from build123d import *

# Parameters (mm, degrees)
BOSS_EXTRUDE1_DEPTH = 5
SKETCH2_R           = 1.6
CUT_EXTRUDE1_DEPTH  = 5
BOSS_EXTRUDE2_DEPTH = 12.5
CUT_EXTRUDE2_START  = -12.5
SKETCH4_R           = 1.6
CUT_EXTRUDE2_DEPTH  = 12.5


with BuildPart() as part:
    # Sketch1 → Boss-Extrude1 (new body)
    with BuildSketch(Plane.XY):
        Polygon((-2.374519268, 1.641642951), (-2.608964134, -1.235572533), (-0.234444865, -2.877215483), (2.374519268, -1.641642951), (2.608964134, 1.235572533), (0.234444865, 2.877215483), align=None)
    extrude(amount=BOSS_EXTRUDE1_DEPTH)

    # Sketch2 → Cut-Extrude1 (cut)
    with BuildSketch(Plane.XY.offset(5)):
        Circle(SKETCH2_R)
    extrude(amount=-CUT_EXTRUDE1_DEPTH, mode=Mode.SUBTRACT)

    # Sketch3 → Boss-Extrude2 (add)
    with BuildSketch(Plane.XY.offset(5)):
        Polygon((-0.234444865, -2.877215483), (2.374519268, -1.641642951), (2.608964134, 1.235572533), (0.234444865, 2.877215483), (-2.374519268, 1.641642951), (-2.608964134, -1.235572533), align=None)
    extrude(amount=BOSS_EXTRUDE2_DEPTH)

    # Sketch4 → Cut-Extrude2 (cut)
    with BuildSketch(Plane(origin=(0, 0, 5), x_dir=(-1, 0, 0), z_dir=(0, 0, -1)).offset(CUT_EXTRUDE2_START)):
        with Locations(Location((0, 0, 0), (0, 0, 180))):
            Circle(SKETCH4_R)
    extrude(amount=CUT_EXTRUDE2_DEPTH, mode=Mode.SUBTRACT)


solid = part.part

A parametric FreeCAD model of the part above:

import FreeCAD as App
import Part
import Sketcher
Q = App.Units.Quantity

doc = App.newDocument("Part")
body = doc.addObject("PartDesign::Body", "Body")

# Sketch on XY plane
sketch1 = doc.addObject("Sketcher::SketchObject", "Sketch")
body.addObject(sketch1)
sketch1.AttachmentSupport = (doc.XY_Plane, [""])
sketch1.MapMode = "FlatFace"
sketch1.addGeometry(Part.LineSegment(App.Vector(-2.4, 1.6, 0), App.Vector(-2.6, -1.2, 0)), False)
sketch1.addGeometry(Part.LineSegment(App.Vector(-2.6, -1.2, 0), App.Vector(-0.2, -2.9, 0)), False)
sketch1.addGeometry(Part.LineSegment(App.Vector(-0.2, -2.9, 0), App.Vector(2.4, -1.6, 0)), False)
sketch1.addGeometry(Part.LineSegment(App.Vector(2.4, -1.6, 0), App.Vector(2.6, 1.2, 0)), False)
sketch1.addGeometry(Part.LineSegment(App.Vector(2.6, 1.2, 0), App.Vector(0.2, 2.9, 0)), False)
sketch1.addGeometry(Part.LineSegment(App.Vector(0.2, 2.9, 0), App.Vector(-2.4, 1.6, 0)), False)
sketch1.addConstraint(Sketcher.Constraint("Coincident", 0, 2, 1, 1))
sketch1.addConstraint(Sketcher.Constraint("Coincident", 1, 2, 2, 1))
sketch1.addConstraint(Sketcher.Constraint("Coincident", 2, 2, 3, 1))
sketch1.addConstraint(Sketcher.Constraint("Coincident", 3, 2, 4, 1))
sketch1.addConstraint(Sketcher.Constraint("Coincident", 4, 2, 5, 1))
sketch1.addConstraint(Sketcher.Constraint("Coincident", 5, 2, 0, 1))
sketch1.addConstraint(Sketcher.Constraint("Symmetric", 0, 2, 3, 2, -1, 1))
sketch1.addConstraint(Sketcher.Constraint("Symmetric", 1, 2, 4, 2, -1, 1))
sketch1.addConstraint(Sketcher.Constraint("Symmetric", 2, 2, 5, 2, -1, 1))
sketch1.addConstraint(Sketcher.Constraint("Equal", 0, 1))
sketch1.addConstraint(Sketcher.Constraint("Equal", 1, 2))
sketch1.addConstraint(Sketcher.Constraint("Distance", 0, Q("2.886751 mm")))
sketch1.addConstraint(Sketcher.Constraint("DistanceX", -1, 1, 2, 2, Q("2.374519 mm")))
sketch1.addConstraint(Sketcher.Constraint("DistanceX", 0, 2, 1, 2, Q("2.374519 mm")))
sketch1.addConstraint(Sketcher.Constraint("DistanceY", 2, 2, 0, 2, Q("0.40607 mm")))
pad1 = doc.addObject("PartDesign::Pad", "Pad")
body.addObject(pad1)
pad1.Profile = sketch1
pad1.Length = 5

# Sketch on XY plane
sketch2 = doc.addObject("Sketcher::SketchObject", "Sketch001")
body.addObject(sketch2)
sketch2.AttachmentSupport = (doc.XY_Plane, [""])
sketch2.MapMode = "FlatFace"
sketch2.AttachmentOffset = App.Placement(App.Vector(0, 0, 5), App.Rotation())
sketch2.addGeometry(Part.Circle(App.Vector(0, 0, 0), App.Vector(0, 0, 1), 1.6), False)
sketch2.addConstraint(Sketcher.Constraint("Coincident", 0, 3, -1, 1))
sketch2.addConstraint(Sketcher.Constraint("Diameter", 0, Q("3.2 mm")))
pocket1 = doc.addObject("PartDesign::Pocket", "Pocket")
body.addObject(pocket1)
pocket1.Profile = sketch2
pocket1.Length = 5

# Sketch on XY plane
sketch3 = doc.addObject("Sketcher::SketchObject", "Sketch002")
body.addObject(sketch3)
sketch3.AttachmentSupport = (doc.XY_Plane, [""])
sketch3.MapMode = "FlatFace"
sketch3.AttachmentOffset = App.Placement(App.Vector(0, 0, 5), App.Rotation())
sketch3.addGeometry(Part.LineSegment(App.Vector(-0.2, -2.9, 0), App.Vector(2.4, -1.6, 0)), False)
sketch3.addGeometry(Part.LineSegment(App.Vector(2.4, -1.6, 0), App.Vector(2.6, 1.2, 0)), False)
sketch3.addGeometry(Part.LineSegment(App.Vector(2.6, 1.2, 0), App.Vector(0.2, 2.9, 0)), False)
sketch3.addGeometry(Part.LineSegment(App.Vector(0.2, 2.9, 0), App.Vector(-2.4, 1.6, 0)), False)
sketch3.addGeometry(Part.LineSegment(App.Vector(-2.4, 1.6, 0), App.Vector(-2.6, -1.2, 0)), False)
sketch3.addGeometry(Part.LineSegment(App.Vector(-2.6, -1.2, 0), App.Vector(-0.2, -2.9, 0)), False)
sketch3.addConstraint(Sketcher.Constraint("Coincident", 0, 2, 1, 1))
sketch3.addConstraint(Sketcher.Constraint("Coincident", 1, 2, 2, 1))
sketch3.addConstraint(Sketcher.Constraint("Coincident", 2, 2, 3, 1))
sketch3.addConstraint(Sketcher.Constraint("Coincident", 3, 2, 4, 1))
sketch3.addConstraint(Sketcher.Constraint("Coincident", 4, 2, 5, 1))
sketch3.addConstraint(Sketcher.Constraint("Coincident", 5, 2, 0, 1))
sketch3.addConstraint(Sketcher.Constraint("Symmetric", 0, 2, 3, 2, -1, 1))
sketch3.addConstraint(Sketcher.Constraint("Symmetric", 1, 2, 4, 2, -1, 1))
sketch3.addConstraint(Sketcher.Constraint("Symmetric", 2, 2, 5, 2, -1, 1))
sketch3.addConstraint(Sketcher.Constraint("Equal", 0, 1))
sketch3.addConstraint(Sketcher.Constraint("Equal", 1, 2))
sketch3.addConstraint(Sketcher.Constraint("Distance", 0, Q("2.886751 mm")))
sketch3.addConstraint(Sketcher.Constraint("DistanceX", -1, 1, 0, 2, Q("2.374519 mm")))
sketch3.addConstraint(Sketcher.Constraint("DistanceX", 2, 2, 1, 2, Q("2.374519 mm")))
sketch3.addConstraint(Sketcher.Constraint("DistanceY", 0, 2, 2, 2, Q("4.518858 mm")))
pad2 = doc.addObject("PartDesign::Pad", "Pad001")
body.addObject(pad2)
pad2.Profile = sketch3
pad2.Length = 12.5

# Sketch on XY plane
sketch4 = doc.addObject("Sketcher::SketchObject", "Sketch003")
body.addObject(sketch4)
sketch4.AttachmentSupport = (doc.XY_Plane, [""])
sketch4.MapMode = "FlatFace"
sketch4.AttachmentOffset = App.Placement(App.Vector(0, 0, 17.5), App.Rotation())
sketch4.addGeometry(Part.Circle(App.Vector(0, 0, 0), App.Vector(0, 0, 1), 1.6), False)
sketch4.addConstraint(Sketcher.Constraint("Coincident", 0, 3, -1, 1))
sketch4.addConstraint(Sketcher.Constraint("Diameter", 0, Q("3.2 mm")))
pocket2 = doc.addObject("PartDesign::Pocket", "Pocket001")
body.addObject(pocket2)
pocket2.Profile = sketch4
pocket2.Length = 12.5

doc.recompute()
